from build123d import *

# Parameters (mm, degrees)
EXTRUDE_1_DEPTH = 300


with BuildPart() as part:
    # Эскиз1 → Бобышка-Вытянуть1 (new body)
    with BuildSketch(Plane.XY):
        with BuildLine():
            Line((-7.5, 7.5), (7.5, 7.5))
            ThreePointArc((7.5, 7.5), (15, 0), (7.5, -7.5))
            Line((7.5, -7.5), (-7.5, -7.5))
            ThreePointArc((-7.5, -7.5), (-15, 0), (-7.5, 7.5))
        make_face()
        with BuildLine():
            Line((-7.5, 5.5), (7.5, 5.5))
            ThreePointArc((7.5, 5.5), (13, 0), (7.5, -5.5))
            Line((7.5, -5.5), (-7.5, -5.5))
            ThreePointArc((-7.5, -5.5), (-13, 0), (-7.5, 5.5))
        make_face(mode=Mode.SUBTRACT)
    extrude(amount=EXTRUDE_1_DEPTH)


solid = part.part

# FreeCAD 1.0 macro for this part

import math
import FreeCAD as App
import Part
import Sketcher
Q = App.Units.Quantity

doc = App.newDocument("Part")
params = doc.addObject("Spreadsheet::Sheet", "Params")
for row, (alias, value) in enumerate([
    ("sketch1_radius", "7.5 mm"),
    ("sketch1_radius2", "5.5 mm"),
    ("sketch1_width", "15 mm"),
    ("pad1_length", "300 mm"),
], start=1):
    params.set(f"A{row}", alias)
    params.set(f"B{row}", "=" + value)
    params.setAlias(f"B{row}", alias)

body = doc.addObject("PartDesign::Body", "Body")

# Sketch on XY plane
sketch1 = doc.addObject("Sketcher::SketchObject", "Sketch")
body.addObject(sketch1)
sketch1.AttachmentSupport = (doc.XY_Plane, [""])
sketch1.MapMode = "FlatFace"
sketch1.addGeometry(Part.LineSegment(App.Vector(8, 8, 0), App.Vector(-8, 8, 0)), False)
sketch1.addGeometry(Part.ArcOfCircle(Part.Circle(App.Vector(-8, 0, 0), App.Vector(0, 0, 1), 8), math.radians(90), math.radians(270)), False)
sketch1.addGeometry(Part.LineSegment(App.Vector(-8, -8, 0), App.Vector(8, -8, 0)), False)
sketch1.addGeometry(Part.ArcOfCircle(Part.Circle(App.Vector(8, 0, 0), App.Vector(0, 0, 1), 8), math.radians(-90), math.radians(90)), False)
sketch1.addGeometry(Part.LineSegment(App.Vector(-8, 6, 0), App.Vector(8, 6, 0)), False)
sketch1.addGeometry(Part.ArcOfCircle(Part.Circle(App.Vector(8, 0, 0), App.Vector(0, 0, 1), 6), math.radians(-90), math.radians(90)), False)
sketch1.addGeometry(Part.LineSegment(App.Vector(8, -6, 0), App.Vector(-8, -6, 0)), False)
sketch1.addGeometry(Part.ArcOfCircle(Part.Circle(App.Vector(-8, 0, 0), App.Vector(0, 0, 1), 6), math.radians(90), math.radians(270)), False)
sketch1.addConstraint(Sketcher.Constraint("Tangent", 0, 2, 1, 1))
sketch1.addConstraint(Sketcher.Constraint("Tangent", 1, 2, 2, 1))
sketch1.addConstraint(Sketcher.Constraint("Tangent", 2, 2, 3, 1))
sketch1.addConstraint(Sketcher.Constraint("Tangent", 3, 2, 0, 1))
sketch1.addConstraint(Sketcher.Constraint("Tangent", 4, 2, 5, 2))
sketch1.addConstraint(Sketcher.Constraint("Tangent", 5, 1, 6, 1))
sketch1.addConstraint(Sketcher.Constraint("Tangent", 6, 2, 7, 2))
sketch1.addConstraint(Sketcher.Constraint("Tangent", 7, 1, 4, 1))
sketch1.addConstraint(Sketcher.Constraint("Horizontal", 0))
sketch1.addConstraint(Sketcher.Constraint("Horizontal", 2))
sketch1.addConstraint(Sketcher.Constraint("Horizontal", 4))
sketch1.addConstraint(Sketcher.Constraint("Horizontal", 6))
sketch1.addConstraint(Sketcher.Constraint("Coincident", 5, 3, 3, 3))
sketch1.addConstraint(Sketcher.Constraint("Symmetric", 1, 3, 3, 3, -1, 1))
sketch1.addConstraint(Sketcher.Constraint("Vertical", 7, 3, 0, 2))
sketch1.addConstraint(Sketcher.Constraint("Radius", 1, Q("7.5 mm")))
sketch1.addConstraint(Sketcher.Constraint("Radius", 5, Q("5.5 mm")))
sketch1.addConstraint(Sketcher.Constraint("DistanceX", 0, 2, 0, 1, Q("15 mm")))
sketch1.setExpression("Constraints[15]", "Params.sketch1_radius")
sketch1.setExpression("Constraints[16]", "Params.sketch1_radius2")
sketch1.setExpression("Constraints[17]", "Params.sketch1_width")
pad1 = doc.addObject("PartDesign::Pad", "Pad")
body.addObject(pad1)
pad1.Profile = sketch1
pad1.setExpression("Length", "Params.pad1_length")

doc.recompute()
